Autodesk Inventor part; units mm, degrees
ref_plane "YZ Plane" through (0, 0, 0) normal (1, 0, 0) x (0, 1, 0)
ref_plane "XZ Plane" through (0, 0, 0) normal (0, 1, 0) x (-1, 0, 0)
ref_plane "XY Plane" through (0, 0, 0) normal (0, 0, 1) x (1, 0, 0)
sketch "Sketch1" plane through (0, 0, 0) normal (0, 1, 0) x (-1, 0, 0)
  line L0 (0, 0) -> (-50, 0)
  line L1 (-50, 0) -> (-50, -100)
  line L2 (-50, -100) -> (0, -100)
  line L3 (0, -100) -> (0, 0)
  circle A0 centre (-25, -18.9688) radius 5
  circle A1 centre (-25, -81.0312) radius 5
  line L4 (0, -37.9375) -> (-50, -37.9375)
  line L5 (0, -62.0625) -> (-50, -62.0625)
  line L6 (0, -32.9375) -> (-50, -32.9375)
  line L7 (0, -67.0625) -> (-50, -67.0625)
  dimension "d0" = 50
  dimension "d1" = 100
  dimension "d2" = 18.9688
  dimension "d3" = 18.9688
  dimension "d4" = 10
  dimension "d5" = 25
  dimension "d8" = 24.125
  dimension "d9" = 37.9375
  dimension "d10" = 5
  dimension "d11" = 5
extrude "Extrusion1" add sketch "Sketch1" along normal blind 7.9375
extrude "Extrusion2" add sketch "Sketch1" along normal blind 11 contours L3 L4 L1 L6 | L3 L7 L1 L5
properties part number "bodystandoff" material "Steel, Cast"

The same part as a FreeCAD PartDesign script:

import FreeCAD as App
import Part
import Sketcher

V = App.Vector
Q = App.Units.Quantity


def add_polygon(sketch, points):
    """Adds a closed chain of lines whose ends are joined by coincident constraints."""
    first, n = sketch.GeometryCount, len(points)
    for a, b in zip(points, points[1:] + points[:1]):
        sketch.addGeometry(Part.LineSegment(App.Vector(*a, 0), App.Vector(*b, 0)), False)
    for i in range(n):
        sketch.addConstraint(Sketcher.Constraint("Coincident", first + i, 2, first + (i + 1) % n, 1))

doc = App.newDocument("Part")
body = doc.addObject("PartDesign::Body", "Body")

sketch1 = body.newObject("Sketcher::SketchObject", "Sketch")
sketch1.AttachmentSupport = (doc.getObject("XZ_Plane"), [""])
sketch1.MapMode = "FlatFace"
add_polygon(sketch1, [(0, 0), (50, 0), (50, -100), (0, -100)])
sketch1.addGeometry(Part.Circle(V(25, -18.9688, 0), V(0, 0, 1), 5), False)
sketch1.addGeometry(Part.Circle(V(25, -81.0312, 0), V(0, 0, 1), 5), False)
sketch1.addConstraint([
    Sketcher.Constraint("Horizontal", 0),
    Sketcher.Constraint("Vertical", 1),
    Sketcher.Constraint("Horizontal", 2),
    Sketcher.Constraint("Vertical", 3),
    Sketcher.Constraint("Coincident", 3, 2, -1, 1),
    Sketcher.Constraint("Equal", 4, 5),
    Sketcher.Constraint("Vertical", 4, 3, 5, 3),
    Sketcher.Constraint("Diameter", 4, Q("10 mm")),
    Sketcher.Constraint("DistanceX", 0, 1, 0, 2, Q("50 mm")),
    Sketcher.Constraint("DistanceY", 1, 2, 1, 1, Q("100 mm")),
    Sketcher.Constraint("DistanceX", -1, 1, 4, 3, Q("25 mm")),
    Sketcher.Constraint("DistanceY", 4, 3, -1, 1, Q("18.9688 mm")),
    Sketcher.Constraint("DistanceY", 1, 2, 5, 3, Q("18.9688 mm")),
])
pad1 = body.newObject("PartDesign::Pad", "Pad")
pad1.Profile = sketch1
pad1.Length = 7.9375
pad1.Reversed = True

sketch2 = body.newObject("Sketcher::SketchObject", "Sketch001")
sketch2.AttachmentSupport = (doc.getObject("XZ_Plane"), [""])
sketch2.MapMode = "FlatFace"
add_polygon(sketch2, [(0, -37.9375), (0, -32.9375), (50, -32.9375), (50, -37.9375)])
add_polygon(sketch2, [(0, -67.0625), (0, -62.0625), (50, -62.0625), (50, -67.0625)])
sketch2.addConstraint([
    Sketcher.Constraint("Vertical", 0),
    Sketcher.Constraint("Horizontal", 1),
    Sketcher.Constraint("Vertical", 2),
    Sketcher.Constraint("Horizontal", 3),
    Sketcher.Constraint("Vertical", 4),
    Sketcher.Constraint("Horizontal", 5),
    Sketcher.Constraint("Vertical", 6),
    Sketcher.Constraint("Horizontal", 7),
    Sketcher.Constraint("PointOnObject", 0, 2, -2),
    Sketcher.Constraint("PointOnObject", 4, 2, -2),
    Sketcher.Constraint("Vertical", 2, 2, 5, 2),
    Sketcher.Constraint("Equal", 2, 4),
    Sketcher.Constraint("DistanceX", 1, 1, 1, 2, Q("50 mm")),
    Sketcher.Constraint("DistanceY", 0, 1, 0, 2, Q("5 mm")),
    Sketcher.Constraint("DistanceY", 4, 2, 3, 2, Q("24.125 mm")),
    Sketcher.Constraint("DistanceY", 2, 2, -1, 1, Q("37.9375 mm")),
])
pad2 = body.newObject("PartDesign::Pad", "Pad001")
pad2.Profile = sketch2
pad2.Length = 11
pad2.Reversed = True

doc.recompute()
